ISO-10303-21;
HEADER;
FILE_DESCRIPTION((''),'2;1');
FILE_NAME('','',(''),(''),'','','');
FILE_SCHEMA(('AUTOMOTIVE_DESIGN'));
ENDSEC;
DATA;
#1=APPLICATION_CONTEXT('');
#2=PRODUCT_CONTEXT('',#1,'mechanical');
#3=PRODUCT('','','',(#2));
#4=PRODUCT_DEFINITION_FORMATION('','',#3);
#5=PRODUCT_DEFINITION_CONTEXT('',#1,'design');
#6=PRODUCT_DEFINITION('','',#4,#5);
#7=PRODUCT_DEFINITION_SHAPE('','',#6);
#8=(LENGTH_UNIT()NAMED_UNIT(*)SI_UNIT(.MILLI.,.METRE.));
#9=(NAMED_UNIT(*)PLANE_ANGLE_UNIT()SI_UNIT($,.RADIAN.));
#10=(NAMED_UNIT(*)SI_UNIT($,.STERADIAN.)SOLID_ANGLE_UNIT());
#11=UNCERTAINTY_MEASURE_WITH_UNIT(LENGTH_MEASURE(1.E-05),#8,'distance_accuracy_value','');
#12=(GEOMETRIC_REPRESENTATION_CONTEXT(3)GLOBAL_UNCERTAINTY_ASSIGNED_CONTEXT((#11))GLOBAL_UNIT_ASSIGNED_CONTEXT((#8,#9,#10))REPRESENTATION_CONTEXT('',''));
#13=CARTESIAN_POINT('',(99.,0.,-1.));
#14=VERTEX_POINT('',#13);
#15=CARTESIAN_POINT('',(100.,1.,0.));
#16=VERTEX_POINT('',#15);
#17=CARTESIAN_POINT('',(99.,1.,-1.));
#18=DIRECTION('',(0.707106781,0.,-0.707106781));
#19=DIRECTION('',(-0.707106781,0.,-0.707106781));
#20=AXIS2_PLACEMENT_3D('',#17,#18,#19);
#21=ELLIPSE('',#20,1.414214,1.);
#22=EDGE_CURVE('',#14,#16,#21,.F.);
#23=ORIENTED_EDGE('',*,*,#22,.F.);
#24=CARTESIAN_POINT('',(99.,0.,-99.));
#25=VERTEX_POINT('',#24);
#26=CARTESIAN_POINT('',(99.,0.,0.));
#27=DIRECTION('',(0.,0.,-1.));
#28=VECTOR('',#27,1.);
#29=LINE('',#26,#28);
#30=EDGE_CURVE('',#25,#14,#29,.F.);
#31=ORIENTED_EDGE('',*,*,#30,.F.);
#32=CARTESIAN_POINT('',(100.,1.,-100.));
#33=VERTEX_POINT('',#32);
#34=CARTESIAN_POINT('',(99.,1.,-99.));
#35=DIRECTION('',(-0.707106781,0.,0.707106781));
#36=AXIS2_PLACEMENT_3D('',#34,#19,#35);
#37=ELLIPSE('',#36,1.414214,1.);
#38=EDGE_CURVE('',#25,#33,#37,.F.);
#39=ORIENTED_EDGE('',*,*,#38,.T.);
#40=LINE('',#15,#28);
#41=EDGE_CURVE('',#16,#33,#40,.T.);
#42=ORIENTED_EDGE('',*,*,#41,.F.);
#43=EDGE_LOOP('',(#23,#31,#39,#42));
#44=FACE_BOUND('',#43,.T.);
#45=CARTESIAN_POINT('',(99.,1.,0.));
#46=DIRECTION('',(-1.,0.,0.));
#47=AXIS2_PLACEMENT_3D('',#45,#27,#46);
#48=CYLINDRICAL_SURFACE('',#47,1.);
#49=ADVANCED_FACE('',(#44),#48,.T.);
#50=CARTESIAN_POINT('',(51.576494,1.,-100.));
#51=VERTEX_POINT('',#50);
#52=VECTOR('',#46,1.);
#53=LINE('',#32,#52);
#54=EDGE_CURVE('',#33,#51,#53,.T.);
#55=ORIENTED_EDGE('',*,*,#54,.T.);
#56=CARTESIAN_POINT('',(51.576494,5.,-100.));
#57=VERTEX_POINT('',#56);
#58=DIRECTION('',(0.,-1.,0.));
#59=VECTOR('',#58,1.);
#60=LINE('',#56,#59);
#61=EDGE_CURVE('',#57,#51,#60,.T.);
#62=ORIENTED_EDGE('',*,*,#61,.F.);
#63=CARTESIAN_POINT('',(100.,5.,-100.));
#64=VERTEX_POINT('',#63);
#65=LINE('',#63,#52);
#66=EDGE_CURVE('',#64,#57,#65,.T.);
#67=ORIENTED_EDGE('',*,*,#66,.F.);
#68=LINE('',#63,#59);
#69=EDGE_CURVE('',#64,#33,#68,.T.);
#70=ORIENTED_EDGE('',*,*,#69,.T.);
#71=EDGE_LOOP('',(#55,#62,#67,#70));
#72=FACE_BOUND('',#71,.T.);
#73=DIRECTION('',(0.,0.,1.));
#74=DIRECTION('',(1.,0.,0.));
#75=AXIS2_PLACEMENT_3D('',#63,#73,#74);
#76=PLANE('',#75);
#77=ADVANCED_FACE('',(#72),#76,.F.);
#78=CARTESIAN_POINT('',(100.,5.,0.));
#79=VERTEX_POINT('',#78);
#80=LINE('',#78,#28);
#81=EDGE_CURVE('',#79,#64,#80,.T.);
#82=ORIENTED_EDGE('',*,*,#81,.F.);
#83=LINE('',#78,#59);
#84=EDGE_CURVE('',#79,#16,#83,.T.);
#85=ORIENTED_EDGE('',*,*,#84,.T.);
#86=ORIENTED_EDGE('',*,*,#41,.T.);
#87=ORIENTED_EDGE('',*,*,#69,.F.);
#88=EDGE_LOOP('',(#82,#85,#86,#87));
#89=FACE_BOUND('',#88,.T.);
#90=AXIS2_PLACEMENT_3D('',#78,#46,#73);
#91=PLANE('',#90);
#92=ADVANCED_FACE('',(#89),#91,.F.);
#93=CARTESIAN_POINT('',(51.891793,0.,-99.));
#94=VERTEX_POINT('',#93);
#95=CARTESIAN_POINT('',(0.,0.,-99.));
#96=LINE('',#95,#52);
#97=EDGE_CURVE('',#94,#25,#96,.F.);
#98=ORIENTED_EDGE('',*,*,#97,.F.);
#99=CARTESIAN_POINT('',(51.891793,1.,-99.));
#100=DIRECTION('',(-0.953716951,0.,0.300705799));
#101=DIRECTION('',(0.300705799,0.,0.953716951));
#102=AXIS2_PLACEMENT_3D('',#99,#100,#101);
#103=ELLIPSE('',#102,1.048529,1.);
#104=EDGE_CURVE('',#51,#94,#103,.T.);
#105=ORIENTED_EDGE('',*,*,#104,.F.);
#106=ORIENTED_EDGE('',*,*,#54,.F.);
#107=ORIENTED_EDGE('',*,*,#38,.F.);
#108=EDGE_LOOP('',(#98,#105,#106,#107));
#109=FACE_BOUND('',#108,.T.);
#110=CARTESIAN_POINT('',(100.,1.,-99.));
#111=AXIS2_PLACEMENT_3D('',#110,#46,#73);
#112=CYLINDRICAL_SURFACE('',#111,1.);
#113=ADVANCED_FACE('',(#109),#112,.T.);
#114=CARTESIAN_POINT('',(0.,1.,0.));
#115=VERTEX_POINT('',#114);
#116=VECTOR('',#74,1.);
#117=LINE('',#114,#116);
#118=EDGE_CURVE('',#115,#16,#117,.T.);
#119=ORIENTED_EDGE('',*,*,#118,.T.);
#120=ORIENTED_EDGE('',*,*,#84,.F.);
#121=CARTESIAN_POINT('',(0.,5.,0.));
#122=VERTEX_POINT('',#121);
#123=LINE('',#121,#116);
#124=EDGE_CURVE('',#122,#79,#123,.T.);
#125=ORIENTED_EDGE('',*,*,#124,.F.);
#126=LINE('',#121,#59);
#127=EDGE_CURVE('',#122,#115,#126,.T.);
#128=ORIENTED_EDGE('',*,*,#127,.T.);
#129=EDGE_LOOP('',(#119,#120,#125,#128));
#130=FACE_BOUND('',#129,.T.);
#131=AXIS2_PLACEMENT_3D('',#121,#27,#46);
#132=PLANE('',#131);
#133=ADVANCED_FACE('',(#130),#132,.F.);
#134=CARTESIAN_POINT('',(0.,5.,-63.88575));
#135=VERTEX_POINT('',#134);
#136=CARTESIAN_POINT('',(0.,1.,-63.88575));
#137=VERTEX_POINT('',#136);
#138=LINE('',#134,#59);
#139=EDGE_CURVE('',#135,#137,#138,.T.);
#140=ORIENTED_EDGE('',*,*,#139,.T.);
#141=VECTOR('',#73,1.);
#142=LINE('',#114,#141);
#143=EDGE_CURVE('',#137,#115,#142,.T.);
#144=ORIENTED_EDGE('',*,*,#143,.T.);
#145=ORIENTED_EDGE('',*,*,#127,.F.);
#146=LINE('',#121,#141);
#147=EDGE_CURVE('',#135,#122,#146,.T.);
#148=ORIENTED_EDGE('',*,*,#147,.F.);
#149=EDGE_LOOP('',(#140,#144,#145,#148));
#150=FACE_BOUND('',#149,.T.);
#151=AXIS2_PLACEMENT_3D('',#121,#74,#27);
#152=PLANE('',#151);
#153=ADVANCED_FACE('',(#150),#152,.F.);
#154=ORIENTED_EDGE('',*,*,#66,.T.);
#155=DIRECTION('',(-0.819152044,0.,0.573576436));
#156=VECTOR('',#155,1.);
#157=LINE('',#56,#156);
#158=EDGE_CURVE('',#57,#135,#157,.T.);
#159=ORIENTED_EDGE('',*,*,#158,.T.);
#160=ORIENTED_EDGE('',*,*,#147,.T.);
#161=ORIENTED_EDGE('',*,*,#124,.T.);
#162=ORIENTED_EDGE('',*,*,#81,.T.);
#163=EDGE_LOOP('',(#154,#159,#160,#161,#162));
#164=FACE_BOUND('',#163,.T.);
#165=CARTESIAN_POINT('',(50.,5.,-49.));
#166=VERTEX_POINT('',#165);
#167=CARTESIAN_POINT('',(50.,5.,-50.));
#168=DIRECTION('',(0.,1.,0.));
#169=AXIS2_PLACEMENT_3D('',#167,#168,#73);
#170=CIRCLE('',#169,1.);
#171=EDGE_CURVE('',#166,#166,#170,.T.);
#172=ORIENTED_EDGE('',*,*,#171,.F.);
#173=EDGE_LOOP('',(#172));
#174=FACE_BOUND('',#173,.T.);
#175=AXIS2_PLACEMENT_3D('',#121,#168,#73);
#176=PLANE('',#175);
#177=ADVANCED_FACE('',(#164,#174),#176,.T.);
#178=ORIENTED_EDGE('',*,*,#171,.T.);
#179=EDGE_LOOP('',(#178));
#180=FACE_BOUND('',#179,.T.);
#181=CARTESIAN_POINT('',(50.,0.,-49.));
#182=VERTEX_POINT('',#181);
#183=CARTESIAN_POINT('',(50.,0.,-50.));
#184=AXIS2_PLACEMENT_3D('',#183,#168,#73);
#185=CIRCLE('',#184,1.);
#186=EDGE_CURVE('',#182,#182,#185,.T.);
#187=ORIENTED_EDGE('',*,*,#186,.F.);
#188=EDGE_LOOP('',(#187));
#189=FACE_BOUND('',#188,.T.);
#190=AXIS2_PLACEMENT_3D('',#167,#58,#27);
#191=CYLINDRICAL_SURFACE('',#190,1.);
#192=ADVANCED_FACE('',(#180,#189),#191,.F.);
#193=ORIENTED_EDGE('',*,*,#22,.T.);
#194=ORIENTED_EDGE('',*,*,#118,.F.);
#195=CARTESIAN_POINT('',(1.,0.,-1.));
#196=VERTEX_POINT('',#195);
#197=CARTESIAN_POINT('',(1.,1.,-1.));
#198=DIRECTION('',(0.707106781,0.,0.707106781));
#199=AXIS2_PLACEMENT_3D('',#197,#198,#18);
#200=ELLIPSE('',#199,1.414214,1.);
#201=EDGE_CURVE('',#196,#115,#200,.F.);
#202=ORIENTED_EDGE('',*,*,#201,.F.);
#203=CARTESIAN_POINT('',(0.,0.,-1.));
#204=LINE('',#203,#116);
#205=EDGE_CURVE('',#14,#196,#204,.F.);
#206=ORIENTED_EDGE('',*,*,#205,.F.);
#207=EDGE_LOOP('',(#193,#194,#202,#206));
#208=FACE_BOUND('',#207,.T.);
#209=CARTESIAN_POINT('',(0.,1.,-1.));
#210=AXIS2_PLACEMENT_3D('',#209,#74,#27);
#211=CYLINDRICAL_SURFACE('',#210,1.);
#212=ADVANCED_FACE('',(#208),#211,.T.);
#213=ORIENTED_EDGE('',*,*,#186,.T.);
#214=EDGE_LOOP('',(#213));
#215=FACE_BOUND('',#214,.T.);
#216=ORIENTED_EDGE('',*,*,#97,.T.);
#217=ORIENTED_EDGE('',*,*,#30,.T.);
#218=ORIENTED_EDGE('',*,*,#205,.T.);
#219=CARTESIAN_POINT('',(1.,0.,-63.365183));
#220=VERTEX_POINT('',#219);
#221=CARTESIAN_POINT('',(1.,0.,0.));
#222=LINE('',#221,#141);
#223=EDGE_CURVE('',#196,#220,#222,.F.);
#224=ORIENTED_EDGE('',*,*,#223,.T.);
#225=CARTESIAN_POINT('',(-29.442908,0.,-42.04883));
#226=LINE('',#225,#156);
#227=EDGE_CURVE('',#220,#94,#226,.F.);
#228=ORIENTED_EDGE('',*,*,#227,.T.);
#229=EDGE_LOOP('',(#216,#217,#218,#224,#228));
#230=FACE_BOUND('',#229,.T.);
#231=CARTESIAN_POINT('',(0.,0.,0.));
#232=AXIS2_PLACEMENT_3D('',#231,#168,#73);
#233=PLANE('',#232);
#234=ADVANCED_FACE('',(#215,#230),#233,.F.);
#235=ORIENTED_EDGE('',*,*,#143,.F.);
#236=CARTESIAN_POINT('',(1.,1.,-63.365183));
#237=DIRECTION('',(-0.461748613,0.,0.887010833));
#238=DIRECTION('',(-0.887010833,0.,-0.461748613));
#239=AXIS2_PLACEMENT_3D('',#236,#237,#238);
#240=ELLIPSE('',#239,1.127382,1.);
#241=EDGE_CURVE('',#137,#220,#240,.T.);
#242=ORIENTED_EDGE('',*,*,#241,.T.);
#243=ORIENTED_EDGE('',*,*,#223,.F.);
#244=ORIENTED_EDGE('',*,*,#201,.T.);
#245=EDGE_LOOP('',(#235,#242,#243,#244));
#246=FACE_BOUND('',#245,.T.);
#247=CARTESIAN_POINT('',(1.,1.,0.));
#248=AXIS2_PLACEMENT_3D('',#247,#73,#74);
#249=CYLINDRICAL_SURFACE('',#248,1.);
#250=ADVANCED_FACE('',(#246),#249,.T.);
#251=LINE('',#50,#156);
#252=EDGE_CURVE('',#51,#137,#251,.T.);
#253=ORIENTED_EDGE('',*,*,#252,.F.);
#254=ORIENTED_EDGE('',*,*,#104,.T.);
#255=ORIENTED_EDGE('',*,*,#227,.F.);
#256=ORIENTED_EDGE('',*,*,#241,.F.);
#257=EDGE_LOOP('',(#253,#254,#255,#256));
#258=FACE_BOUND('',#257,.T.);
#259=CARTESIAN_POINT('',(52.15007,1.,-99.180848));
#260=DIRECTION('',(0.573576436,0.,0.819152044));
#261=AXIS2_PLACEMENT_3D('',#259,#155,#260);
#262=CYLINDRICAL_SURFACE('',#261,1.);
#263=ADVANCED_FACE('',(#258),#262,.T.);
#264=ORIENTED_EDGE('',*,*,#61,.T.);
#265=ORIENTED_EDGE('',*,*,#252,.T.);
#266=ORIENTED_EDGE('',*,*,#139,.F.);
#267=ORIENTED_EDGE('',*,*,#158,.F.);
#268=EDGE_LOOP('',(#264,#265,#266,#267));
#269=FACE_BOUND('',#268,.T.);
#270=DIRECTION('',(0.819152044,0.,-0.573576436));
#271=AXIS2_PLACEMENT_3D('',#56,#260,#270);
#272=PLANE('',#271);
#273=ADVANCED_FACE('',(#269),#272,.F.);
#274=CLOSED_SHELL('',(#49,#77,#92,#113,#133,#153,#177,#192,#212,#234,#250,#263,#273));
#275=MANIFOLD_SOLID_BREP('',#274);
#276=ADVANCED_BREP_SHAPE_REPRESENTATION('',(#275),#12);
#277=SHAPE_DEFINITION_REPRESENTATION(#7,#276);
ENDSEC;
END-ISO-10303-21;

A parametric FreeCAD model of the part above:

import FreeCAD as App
import Part
import Sketcher
Q = App.Units.Quantity


def edges_at(feature, points):
    """Names of the edges that pass closest to the given points."""
    edges = feature.Shape.Edges
    near = lambda p: min(range(len(edges)), key=lambda i: edges[i].distToShape(Part.Vertex(*p))[0])
    return sorted({f"Edge{near(p) + 1}" for p in points})

doc = App.newDocument("Part")
body = doc.addObject("PartDesign::Body", "Body")

sketch1 = doc.addObject("Sketcher::SketchObject", "Sketch")
body.addObject(sketch1)
sketch1.AttachmentSupport = (doc.XZ_Plane, [""])
sketch1.MapMode = "FlatFace"
sketch1.addGeometry([
    Part.LineSegment(App.Vector(0, 0, 0), App.Vector(100, 0, 0)),
    Part.LineSegment(App.Vector(100, 0, 0), App.Vector(100, -100, 0)),
    Part.LineSegment(App.Vector(100, -100, 0), App.Vector(52, -100, 0)),
    Part.LineSegment(App.Vector(52, -100, 0), App.Vector(0, -64, 0)),
    Part.LineSegment(App.Vector(0, -64, 0), App.Vector(0, 0, 0)),
], False)
sketch1.addConstraint([
    Sketcher.Constraint("Coincident", 0, 2, 1, 1),
    Sketcher.Constraint("Coincident", 1, 2, 2, 1),
    Sketcher.Constraint("Coincident", 2, 2, 3, 1),
    Sketcher.Constraint("Coincident", 3, 2, 4, 1),
    Sketcher.Constraint("Coincident", 4, 2, 0, 1),
    Sketcher.Constraint("Horizontal", 0),
    Sketcher.Constraint("Vertical", 1),
    Sketcher.Constraint("Horizontal", 2),
    Sketcher.Constraint("Vertical", 4),
    Sketcher.Constraint("Coincident", 4, 2, -1, 1),
    Sketcher.Constraint("Equal", 0, 1),
    Sketcher.Constraint("DistanceX", 0, 1, 0, 2, Q("100 mm")),
    Sketcher.Constraint("Angle", 3, Q("145 deg")),
    Sketcher.Constraint("DistanceY", 4, 1, 4, 2, Q("63.88575 mm")),
])
pad1 = doc.addObject("PartDesign::Pad", "Pad")
body.addObject(pad1)
pad1.Profile = sketch1
pad1.Length = 5
pad1.Reversed = True

sketch2 = doc.addObject("Sketcher::SketchObject", "Sketch001")
body.addObject(sketch2)
sketch2.AttachmentSupport = (doc.XZ_Plane, [""])
sketch2.MapMode = "FlatFace"
sketch2.addGeometry(Part.Circle(App.Vector(50, -50, 0), App.Vector(0, 0, 1), 1), False)
sketch2.addConstraint([
    Sketcher.Constraint("Diameter", 0, Q("2 mm")),
    Sketcher.Constraint("DistanceX", -1, 1, 0, 3, Q("50 mm")),
    Sketcher.Constraint("DistanceY", 0, 3, -1, 1, Q("50 mm")),
])
pocket1 = doc.addObject("PartDesign::Pocket", "Pocket")
body.addObject(pocket1)
pocket1.Profile = sketch2
pocket1.Length = 5
doc.recompute()

fillet = doc.addObject("PartDesign::Fillet", "Fillet")
body.addObject(fillet)
fillet.Base = (pocket1, edges_at(pocket1, [
    (25.788, 0, -81.943),
    (75.788, 0, -100),
    (100, 0, -50),
    (50, 0, 0),
    (0, 0, -31.943),
]))
fillet.Radius = 1

doc.recompute()
